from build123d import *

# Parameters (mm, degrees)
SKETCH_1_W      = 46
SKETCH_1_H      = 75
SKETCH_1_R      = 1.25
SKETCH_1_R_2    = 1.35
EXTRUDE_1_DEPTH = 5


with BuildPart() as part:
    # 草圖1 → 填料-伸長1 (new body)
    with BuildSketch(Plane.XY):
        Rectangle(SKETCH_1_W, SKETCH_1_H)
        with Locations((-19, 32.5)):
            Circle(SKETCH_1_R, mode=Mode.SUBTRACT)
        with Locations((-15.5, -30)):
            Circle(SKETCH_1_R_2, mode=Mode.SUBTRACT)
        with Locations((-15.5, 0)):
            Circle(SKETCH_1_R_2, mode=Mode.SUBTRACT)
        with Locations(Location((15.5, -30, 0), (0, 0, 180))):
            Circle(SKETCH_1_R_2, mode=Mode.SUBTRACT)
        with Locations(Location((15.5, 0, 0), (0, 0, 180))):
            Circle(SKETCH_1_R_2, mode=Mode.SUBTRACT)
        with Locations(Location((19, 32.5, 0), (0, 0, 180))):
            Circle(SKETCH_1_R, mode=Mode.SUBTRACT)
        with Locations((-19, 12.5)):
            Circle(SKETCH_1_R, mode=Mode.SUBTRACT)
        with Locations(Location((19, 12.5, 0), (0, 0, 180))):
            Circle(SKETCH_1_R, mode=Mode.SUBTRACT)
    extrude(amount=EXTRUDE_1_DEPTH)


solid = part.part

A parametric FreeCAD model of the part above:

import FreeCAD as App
import Part
import Sketcher
from FreeCAD import Vector
Q = App.Units.Quantity

doc = App.newDocument("Part")
body = doc.addObject("PartDesign::Body", "Body")

sketch1 = doc.addObject("Sketcher::SketchObject", "Sketch")
body.addObject(sketch1)
sketch1.AttachmentSupport = (doc.XY_Plane, [""])
sketch1.MapMode = "FlatFace"
sketch1.addGeometry(Part.LineSegment(Vector(-23, 37.5, 0), Vector(-23, -37.5, 0)), False)
sketch1.addGeometry(Part.LineSegment(Vector(-23, -37.5, 0), Vector(23, -37.5, 0)), False)
sketch1.addGeometry(Part.LineSegment(Vector(23, -37.5, 0), Vector(23, 37.5, 0)), False)
sketch1.addGeometry(Part.LineSegment(Vector(23, 37.5, 0), Vector(-23, 37.5, 0)), False)
sketch1.addGeometry(Part.Circle(Vector(-15.5, -30, 0), Vector(0, 0, 1), 1.35), False)
sketch1.addGeometry(Part.Circle(Vector(-15.5, 0, 0), Vector(0, 0, 1), 1.35), False)
sketch1.addGeometry(Part.Circle(Vector(15.5, -30, 0), Vector(0, 0, 1), 1.35), False)
sketch1.addGeometry(Part.Circle(Vector(15.5, 0, 0), Vector(0, 0, 1), 1.35), False)
sketch1.addGeometry(Part.Circle(Vector(-19, 12.5, 0), Vector(0, 0, 1), 1.25), False)
sketch1.addGeometry(Part.Circle(Vector(-19, 32.5, 0), Vector(0, 0, 1), 1.25), False)
sketch1.addGeometry(Part.Circle(Vector(19, 12.5, 0), Vector(0, 0, 1), 1.25), False)
sketch1.addGeometry(Part.Circle(Vector(19, 32.5, 0), Vector(0, 0, 1), 1.25), False)
sketch1.addConstraint(Sketcher.Constraint("Coincident", 0, 2, 1, 1))
sketch1.addConstraint(Sketcher.Constraint("Coincident", 1, 2, 2, 1))
sketch1.addConstraint(Sketcher.Constraint("Coincident", 2, 2, 3, 1))
sketch1.addConstraint(Sketcher.Constraint("Coincident", 3, 2, 0, 1))
sketch1.addConstraint(Sketcher.Constraint("Vertical", 0))
sketch1.addConstraint(Sketcher.Constraint("Horizontal", 1))
sketch1.addConstraint(Sketcher.Constraint("Vertical", 2))
sketch1.addConstraint(Sketcher.Constraint("Horizontal", 3))
sketch1.addConstraint(Sketcher.Constraint("Equal", 4, 5))
sketch1.addConstraint(Sketcher.Constraint("Equal", 5, 6))
sketch1.addConstraint(Sketcher.Constraint("Equal", 6, 7))
sketch1.addConstraint(Sketcher.Constraint("Equal", 8, 9))
sketch1.addConstraint(Sketcher.Constraint("Equal", 9, 10))
sketch1.addConstraint(Sketcher.Constraint("Equal", 10, 11))
sketch1.addConstraint(Sketcher.Constraint("Symmetric", 5, 3, 7, 3, -1, 1))
sketch1.addConstraint(Sketcher.Constraint("Symmetric", 0, 2, 2, 2, -1, 1))
sketch1.addConstraint(Sketcher.Constraint("Symmetric", 4, 3, 6, 3, -2))
sketch1.addConstraint(Sketcher.Constraint("Symmetric", 8, 3, 10, 3, -2))
sketch1.addConstraint(Sketcher.Constraint("Symmetric", 9, 3, 11, 3, -2))
sketch1.addConstraint(Sketcher.Constraint("PointOnObject", 5, 3, -1))
sketch1.addConstraint(Sketcher.Constraint("Vertical", 4, 3, 5, 3))
sketch1.addConstraint(Sketcher.Constraint("Vertical", 8, 3, 9, 3))
sketch1.addConstraint(Sketcher.Constraint("Diameter", 4, Q("2.7 mm")))
sketch1.addConstraint(Sketcher.Constraint("Diameter", 8, Q("2.5 mm")))
sketch1.addConstraint(Sketcher.Constraint("DistanceX", 1, 1, 1, 2, Q("46 mm")))
sketch1.addConstraint(Sketcher.Constraint("DistanceY", 0, 2, 0, 1, Q("75 mm")))
sketch1.addConstraint(Sketcher.Constraint("DistanceY", 4, 3, -1, 1, Q("30 mm")))
sketch1.addConstraint(Sketcher.Constraint("DistanceX", 8, 3, -1, 1, Q("19 mm")))
sketch1.addConstraint(Sketcher.Constraint("DistanceX", 4, 3, 6, 3, Q("31 mm")))
sketch1.addConstraint(Sketcher.Constraint("DistanceY", 8, 3, 9, 3, Q("20 mm")))
sketch1.addConstraint(Sketcher.Constraint("DistanceY", 0, 2, 8, 3, Q("50 mm")))
pad1 = doc.addObject("PartDesign::Pad", "Pad")
body.addObject(pad1)
pad1.Profile = sketch1
pad1.Length = 5

doc.recompute()
